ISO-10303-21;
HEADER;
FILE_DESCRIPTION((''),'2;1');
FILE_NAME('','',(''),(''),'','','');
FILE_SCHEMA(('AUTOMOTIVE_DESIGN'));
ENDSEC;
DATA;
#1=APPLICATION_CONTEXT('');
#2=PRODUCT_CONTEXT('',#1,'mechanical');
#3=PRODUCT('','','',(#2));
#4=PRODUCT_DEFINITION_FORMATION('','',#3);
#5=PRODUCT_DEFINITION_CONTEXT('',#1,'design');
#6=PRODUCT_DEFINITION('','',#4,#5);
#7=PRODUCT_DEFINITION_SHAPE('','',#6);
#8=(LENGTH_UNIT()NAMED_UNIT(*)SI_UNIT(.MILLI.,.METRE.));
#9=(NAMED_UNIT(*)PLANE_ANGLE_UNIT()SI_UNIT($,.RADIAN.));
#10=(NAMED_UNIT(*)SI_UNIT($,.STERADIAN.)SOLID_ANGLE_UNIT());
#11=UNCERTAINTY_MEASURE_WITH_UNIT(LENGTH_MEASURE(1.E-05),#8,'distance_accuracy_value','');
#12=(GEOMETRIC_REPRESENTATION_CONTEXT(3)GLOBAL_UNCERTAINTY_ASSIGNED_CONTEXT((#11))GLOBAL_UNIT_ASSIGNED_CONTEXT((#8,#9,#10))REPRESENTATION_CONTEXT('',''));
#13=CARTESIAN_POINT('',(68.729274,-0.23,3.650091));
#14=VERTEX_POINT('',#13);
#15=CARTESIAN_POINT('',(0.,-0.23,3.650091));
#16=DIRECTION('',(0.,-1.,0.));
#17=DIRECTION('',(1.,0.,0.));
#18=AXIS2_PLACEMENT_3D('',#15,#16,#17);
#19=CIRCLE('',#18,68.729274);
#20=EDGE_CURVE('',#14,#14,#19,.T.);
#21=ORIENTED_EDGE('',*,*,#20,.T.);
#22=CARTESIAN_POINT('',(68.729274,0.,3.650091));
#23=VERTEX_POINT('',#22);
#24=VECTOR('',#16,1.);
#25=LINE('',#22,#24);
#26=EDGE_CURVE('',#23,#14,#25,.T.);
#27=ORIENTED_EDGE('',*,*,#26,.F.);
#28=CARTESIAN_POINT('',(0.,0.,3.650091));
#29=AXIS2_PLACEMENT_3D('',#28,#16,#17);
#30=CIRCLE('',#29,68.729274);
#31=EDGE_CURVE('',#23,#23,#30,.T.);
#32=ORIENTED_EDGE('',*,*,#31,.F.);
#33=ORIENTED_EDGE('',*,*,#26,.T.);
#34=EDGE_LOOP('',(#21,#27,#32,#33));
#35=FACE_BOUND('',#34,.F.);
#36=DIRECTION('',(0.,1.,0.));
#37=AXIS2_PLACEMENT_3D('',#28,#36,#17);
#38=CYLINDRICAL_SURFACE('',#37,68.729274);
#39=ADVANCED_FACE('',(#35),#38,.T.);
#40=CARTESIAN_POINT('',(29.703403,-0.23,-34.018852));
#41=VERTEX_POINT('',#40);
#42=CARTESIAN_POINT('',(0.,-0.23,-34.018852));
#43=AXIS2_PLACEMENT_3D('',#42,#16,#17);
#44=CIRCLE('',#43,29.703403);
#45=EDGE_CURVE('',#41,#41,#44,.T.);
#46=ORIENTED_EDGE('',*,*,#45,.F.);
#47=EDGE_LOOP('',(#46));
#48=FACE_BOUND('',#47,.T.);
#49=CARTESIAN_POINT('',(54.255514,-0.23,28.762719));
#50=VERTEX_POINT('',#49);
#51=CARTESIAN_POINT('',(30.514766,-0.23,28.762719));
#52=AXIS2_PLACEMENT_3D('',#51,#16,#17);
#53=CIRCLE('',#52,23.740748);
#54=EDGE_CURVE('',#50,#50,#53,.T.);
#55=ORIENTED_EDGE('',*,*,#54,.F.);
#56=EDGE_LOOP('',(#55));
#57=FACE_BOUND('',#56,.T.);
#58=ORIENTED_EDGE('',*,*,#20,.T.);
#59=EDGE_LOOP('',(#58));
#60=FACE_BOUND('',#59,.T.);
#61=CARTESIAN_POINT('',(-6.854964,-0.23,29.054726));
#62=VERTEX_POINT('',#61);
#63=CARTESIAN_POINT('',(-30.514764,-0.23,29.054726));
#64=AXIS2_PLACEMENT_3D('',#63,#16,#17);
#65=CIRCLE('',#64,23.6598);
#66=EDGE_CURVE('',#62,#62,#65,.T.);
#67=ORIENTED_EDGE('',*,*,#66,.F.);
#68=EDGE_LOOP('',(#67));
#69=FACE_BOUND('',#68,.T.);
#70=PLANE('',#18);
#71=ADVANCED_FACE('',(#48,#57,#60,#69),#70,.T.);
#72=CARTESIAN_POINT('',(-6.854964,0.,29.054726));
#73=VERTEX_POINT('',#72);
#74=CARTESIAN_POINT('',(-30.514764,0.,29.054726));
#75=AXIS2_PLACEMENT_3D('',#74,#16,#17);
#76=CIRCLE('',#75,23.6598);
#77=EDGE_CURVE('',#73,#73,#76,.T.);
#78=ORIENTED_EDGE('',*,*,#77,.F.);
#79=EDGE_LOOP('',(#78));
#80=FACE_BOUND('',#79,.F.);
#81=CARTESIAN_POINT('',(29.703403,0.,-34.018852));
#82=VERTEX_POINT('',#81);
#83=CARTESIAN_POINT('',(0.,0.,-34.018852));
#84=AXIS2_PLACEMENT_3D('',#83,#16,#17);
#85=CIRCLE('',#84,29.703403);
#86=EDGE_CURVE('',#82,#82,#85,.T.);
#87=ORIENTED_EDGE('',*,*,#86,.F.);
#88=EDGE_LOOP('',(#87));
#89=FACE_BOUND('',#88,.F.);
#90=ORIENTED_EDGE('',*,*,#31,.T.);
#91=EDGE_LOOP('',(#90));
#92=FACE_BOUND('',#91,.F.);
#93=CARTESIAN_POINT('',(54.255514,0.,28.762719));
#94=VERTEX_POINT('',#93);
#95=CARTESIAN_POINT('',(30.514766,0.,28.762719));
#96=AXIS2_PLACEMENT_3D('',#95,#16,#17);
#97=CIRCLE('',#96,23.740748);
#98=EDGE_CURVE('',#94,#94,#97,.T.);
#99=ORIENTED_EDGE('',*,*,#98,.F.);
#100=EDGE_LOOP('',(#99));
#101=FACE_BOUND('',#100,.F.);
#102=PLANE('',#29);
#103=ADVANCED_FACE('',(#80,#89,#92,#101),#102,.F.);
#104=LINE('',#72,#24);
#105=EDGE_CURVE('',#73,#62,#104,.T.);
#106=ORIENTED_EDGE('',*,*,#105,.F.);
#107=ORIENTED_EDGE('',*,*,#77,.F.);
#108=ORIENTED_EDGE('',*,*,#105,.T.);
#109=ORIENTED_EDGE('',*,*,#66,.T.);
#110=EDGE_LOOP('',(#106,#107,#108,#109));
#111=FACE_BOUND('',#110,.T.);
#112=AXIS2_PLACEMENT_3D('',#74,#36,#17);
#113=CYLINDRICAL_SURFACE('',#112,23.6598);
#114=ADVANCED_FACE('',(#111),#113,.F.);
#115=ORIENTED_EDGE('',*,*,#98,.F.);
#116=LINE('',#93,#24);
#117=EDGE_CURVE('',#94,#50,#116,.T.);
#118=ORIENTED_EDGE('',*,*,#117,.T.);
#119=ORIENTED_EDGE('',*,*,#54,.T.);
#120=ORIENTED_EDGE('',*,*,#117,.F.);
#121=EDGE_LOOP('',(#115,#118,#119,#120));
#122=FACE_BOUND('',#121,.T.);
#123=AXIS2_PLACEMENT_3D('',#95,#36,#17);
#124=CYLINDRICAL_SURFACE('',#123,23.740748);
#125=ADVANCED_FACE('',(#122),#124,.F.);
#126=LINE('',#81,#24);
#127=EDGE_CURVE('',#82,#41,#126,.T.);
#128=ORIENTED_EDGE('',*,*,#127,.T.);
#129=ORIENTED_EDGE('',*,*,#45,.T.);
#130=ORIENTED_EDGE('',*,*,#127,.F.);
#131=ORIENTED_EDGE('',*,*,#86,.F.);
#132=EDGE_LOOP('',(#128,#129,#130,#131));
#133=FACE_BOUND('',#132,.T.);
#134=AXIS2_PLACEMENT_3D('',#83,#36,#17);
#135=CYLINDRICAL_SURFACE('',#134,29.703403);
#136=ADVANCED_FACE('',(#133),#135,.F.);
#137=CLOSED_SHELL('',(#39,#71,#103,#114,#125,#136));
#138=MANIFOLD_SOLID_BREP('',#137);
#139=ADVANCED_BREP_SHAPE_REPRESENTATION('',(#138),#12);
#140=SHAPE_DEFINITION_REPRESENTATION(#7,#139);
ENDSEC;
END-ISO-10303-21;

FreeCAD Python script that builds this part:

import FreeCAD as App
import Part
import Sketcher
from FreeCAD import Vector

doc = App.newDocument("Part")
body = doc.addObject("PartDesign::Body", "Body")

# Sketch on XZ plane
sketch1 = body.newObject("Sketcher::SketchObject", "Sketch")
sketch1.AttachmentSupport = (doc.getObject("XZ_Plane"), [""])
sketch1.MapMode = "FlatFace"
sketch1.addGeometry(Part.Circle(Vector(0, 3.650091, 0), Vector(0, 0, 1), 68.729274), False)
sketch1.addGeometry(Part.Circle(Vector(0, -34.018852, 0), Vector(0, 0, 1), 29.703403), False)
sketch1.addGeometry(Part.Circle(Vector(-30.514764, 29.054726, 0), Vector(0, 0, 1), 23.6598), False)
sketch1.addGeometry(Part.Circle(Vector(30.514766, 28.762719, 0), Vector(0, 0, 1), 23.740748), False)
sketch1.addConstraint(Sketcher.Constraint("PointOnObject", 0, 3, -2))
sketch1.addConstraint(Sketcher.Constraint("PointOnObject", 1, 3, -2))
sketch1.addConstraint(Sketcher.Constraint("Diameter", 2, 47.3196))
sketch1.addConstraint(Sketcher.Constraint("Diameter", 0, 137.458548))
sketch1.addConstraint(Sketcher.Constraint("Diameter", 1, 59.406806))
sketch1.addConstraint(Sketcher.Constraint("Diameter", 3, 47.481496))
sketch1.addConstraint(Sketcher.Constraint("DistanceY", -1, 1, 0, 3, 3.650091))
sketch1.addConstraint(Sketcher.Constraint("DistanceY", -1, 1, 3, 3, 28.762719))
sketch1.addConstraint(Sketcher.Constraint("DistanceX", 2, 3, 3, 3, 61.02953))
sketch1.addConstraint(Sketcher.Constraint("DistanceY", 1, 3, 3, 3, 62.781571))
sketch1.addConstraint(Sketcher.Constraint("DistanceX", 2, 3, -1, 1, 30.514764))
sketch1.addConstraint(Sketcher.Constraint("DistanceY", -1, 1, 2, 3, 29.054726))
pad1 = body.newObject("PartDesign::Pad", "Pad")
pad1.Profile = sketch1
pad1.Length = 0.23

doc.recompute()
